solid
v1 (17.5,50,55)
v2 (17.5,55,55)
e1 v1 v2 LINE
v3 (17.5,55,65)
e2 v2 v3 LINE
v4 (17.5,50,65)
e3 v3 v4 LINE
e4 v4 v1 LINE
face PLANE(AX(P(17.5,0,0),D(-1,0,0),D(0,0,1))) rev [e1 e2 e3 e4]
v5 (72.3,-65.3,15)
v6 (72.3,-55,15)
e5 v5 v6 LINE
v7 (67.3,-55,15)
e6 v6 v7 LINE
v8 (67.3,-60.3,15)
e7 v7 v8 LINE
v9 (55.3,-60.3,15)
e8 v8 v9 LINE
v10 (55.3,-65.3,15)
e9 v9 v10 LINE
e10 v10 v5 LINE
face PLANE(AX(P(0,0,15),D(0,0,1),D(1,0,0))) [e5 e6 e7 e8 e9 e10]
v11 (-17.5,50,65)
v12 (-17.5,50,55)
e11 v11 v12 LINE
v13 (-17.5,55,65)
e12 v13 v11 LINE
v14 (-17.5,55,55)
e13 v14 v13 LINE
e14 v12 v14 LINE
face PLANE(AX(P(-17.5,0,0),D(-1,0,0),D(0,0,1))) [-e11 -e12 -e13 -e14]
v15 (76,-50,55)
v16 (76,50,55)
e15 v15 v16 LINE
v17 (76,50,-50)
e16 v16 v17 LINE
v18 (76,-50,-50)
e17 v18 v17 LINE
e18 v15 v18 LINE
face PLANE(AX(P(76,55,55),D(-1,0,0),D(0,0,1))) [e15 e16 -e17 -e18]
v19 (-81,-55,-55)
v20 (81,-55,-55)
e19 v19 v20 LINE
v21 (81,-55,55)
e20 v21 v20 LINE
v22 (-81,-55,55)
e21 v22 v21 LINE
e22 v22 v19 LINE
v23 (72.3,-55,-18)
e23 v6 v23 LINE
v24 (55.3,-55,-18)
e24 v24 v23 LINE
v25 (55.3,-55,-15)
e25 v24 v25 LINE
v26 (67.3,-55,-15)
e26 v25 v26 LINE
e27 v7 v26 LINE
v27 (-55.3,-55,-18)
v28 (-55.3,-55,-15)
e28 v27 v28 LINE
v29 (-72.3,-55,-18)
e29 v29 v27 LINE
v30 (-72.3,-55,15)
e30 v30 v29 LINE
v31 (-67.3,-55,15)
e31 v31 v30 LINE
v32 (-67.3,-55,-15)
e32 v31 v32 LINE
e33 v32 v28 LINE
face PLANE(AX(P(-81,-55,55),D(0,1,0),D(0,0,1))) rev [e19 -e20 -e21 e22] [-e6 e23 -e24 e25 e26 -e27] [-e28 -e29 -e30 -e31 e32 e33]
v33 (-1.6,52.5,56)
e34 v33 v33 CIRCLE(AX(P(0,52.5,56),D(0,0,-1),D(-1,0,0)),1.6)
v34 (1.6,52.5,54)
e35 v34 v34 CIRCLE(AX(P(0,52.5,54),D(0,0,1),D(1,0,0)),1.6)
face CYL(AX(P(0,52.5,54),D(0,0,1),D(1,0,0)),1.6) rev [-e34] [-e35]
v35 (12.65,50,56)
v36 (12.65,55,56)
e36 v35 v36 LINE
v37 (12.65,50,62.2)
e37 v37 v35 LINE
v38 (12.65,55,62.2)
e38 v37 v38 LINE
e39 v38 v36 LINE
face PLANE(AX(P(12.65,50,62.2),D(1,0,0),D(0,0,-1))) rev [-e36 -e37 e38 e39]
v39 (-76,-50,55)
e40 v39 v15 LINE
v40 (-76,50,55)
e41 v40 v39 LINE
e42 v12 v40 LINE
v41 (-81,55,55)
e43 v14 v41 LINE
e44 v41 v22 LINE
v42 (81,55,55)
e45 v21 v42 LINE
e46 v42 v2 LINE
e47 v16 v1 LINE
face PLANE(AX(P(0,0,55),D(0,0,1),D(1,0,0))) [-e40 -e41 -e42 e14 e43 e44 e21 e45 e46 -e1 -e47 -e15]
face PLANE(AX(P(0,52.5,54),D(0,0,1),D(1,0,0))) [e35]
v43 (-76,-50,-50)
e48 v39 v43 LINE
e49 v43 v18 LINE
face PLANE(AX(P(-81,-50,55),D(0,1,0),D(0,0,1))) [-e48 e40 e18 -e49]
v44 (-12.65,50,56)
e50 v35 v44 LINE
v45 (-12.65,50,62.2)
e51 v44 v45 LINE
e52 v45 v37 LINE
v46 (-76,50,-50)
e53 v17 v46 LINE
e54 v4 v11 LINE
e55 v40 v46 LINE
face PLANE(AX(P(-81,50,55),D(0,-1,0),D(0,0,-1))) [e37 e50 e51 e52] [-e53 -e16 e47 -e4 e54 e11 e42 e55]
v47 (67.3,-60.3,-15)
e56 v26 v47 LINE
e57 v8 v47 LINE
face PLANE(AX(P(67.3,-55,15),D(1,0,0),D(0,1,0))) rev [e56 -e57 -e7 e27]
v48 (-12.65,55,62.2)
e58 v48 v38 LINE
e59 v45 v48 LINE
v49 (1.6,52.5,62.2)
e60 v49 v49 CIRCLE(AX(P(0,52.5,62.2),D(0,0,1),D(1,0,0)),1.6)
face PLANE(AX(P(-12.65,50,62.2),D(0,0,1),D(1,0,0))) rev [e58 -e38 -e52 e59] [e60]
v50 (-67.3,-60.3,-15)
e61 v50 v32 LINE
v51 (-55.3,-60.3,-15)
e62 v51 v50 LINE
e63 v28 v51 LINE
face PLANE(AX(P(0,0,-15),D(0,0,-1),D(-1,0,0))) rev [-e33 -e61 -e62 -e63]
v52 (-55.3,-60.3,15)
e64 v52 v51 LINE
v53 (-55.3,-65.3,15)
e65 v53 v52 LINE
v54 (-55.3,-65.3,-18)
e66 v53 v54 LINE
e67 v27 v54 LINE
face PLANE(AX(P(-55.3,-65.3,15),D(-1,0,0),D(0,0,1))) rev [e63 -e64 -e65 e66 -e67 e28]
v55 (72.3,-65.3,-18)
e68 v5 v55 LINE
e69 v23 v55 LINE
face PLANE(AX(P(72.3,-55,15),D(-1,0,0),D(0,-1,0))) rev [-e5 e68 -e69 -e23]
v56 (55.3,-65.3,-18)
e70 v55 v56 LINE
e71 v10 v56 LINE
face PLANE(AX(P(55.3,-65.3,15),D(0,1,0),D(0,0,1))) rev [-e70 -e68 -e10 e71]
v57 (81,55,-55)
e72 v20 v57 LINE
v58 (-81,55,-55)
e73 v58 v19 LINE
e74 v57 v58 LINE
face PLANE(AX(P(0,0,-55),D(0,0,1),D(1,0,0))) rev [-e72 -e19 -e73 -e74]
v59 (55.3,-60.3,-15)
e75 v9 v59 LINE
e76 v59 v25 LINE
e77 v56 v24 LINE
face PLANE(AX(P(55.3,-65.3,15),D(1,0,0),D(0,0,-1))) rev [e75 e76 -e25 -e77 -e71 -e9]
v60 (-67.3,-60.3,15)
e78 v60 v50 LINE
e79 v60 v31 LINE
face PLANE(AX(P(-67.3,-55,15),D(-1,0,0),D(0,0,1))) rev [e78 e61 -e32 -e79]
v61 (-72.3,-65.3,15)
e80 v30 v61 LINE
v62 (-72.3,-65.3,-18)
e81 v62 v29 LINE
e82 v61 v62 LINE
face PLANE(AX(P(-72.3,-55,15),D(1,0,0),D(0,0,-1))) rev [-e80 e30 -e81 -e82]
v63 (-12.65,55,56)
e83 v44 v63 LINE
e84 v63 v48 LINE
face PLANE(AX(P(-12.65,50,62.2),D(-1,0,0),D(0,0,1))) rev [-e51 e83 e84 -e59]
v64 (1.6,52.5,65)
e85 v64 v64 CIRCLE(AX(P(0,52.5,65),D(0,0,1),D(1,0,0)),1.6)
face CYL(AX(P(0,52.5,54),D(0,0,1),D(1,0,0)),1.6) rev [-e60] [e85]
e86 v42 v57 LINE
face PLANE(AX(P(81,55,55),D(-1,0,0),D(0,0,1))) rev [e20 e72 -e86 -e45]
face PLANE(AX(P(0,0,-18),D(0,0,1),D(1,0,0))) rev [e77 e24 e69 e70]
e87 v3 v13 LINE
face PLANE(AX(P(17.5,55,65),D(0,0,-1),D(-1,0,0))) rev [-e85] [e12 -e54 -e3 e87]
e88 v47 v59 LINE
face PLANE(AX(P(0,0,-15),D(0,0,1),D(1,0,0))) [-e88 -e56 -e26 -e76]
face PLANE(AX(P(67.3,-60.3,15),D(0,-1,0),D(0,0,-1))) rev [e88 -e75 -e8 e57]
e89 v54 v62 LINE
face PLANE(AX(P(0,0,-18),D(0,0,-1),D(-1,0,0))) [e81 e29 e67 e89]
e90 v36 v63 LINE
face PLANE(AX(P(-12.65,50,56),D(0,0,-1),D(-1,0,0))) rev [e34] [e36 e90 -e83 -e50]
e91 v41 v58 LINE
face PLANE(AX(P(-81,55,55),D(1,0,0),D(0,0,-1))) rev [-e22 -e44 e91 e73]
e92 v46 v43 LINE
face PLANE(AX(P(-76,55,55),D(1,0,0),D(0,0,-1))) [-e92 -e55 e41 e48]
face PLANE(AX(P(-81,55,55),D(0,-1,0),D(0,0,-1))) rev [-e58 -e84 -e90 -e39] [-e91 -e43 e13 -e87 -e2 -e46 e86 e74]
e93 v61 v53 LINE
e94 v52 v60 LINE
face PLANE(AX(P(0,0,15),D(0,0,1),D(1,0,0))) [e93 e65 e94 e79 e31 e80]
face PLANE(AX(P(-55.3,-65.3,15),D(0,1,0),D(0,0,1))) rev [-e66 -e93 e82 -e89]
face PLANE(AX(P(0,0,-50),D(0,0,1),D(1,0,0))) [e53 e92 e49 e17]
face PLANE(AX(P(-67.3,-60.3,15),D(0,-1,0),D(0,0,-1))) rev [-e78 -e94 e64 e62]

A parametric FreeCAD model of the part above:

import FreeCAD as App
import Part
import Sketcher
from FreeCAD import Vector
Q = App.Units.Quantity


def faces_at(feature, points):
    """Names of the faces that lie closest to the given points."""
    faces = feature.Shape.Faces
    near = lambda p: min(range(len(faces)), key=lambda i: faces[i].distToShape(Part.Vertex(*p))[0])
    return sorted({f"Face{near(p) + 1}" for p in points})

doc = App.newDocument("Part")
params = doc.addObject("Spreadsheet::Sheet", "Params")
for row, (alias, value) in enumerate([
    ("sketch1_width", "162 mm"),
    ("sketch1_height", "110 mm"),
    ("pad1_length", "110 mm"),
    ("thickness_wall", "5 mm"),
    ("sketch2_width", "5 mm"),
    ("sketch2_width2", "17 mm"),
    ("sketch2_height", "5.3 mm"),
    ("pad2_length", "30 mm"),
    ("sketch3_width", "17 mm"),
    ("sketch3_height", "10.3 mm"),
    ("pad3_length", "3 mm"),
    ("sketch4_width", "5 mm"),
    ("sketch4_height", "10 mm"),
    ("pad4_length", "35 mm"),
    ("sketch5_width", "25.3 mm"),
    ("sketch5_height", "6.2 mm"),
    ("pocket1_length", "5 mm"),
    ("sketch6_diameter", "3.2 mm"),
    ("pocket2_length", "11 mm"),
], start=1):
    params.set(f"A{row}", alias)
    params.set(f"B{row}", "=" + value)
    params.setAlias(f"B{row}", alias)

body = doc.addObject("PartDesign::Body", "Body")

sketch1 = doc.addObject("Sketcher::SketchObject", "Sketch")
body.addObject(sketch1)
sketch1.AttachmentSupport = (doc.XY_Plane, [""])
sketch1.MapMode = "FlatFace"
sketch1.addGeometry([
    Part.LineSegment(Vector(-81, 55, 0), Vector(-81, -55, 0)),
    Part.LineSegment(Vector(-81, -55, 0), Vector(81, -55, 0)),
    Part.LineSegment(Vector(81, -55, 0), Vector(81, 55, 0)),
    Part.LineSegment(Vector(81, 55, 0), Vector(-81, 55, 0)),
], False)
sketch1.addConstraint([
    Sketcher.Constraint("Coincident", 0, 2, 1, 1),
    Sketcher.Constraint("Coincident", 1, 2, 2, 1),
    Sketcher.Constraint("Coincident", 2, 2, 3, 1),
    Sketcher.Constraint("Coincident", 3, 2, 0, 1),
    Sketcher.Constraint("Vertical", 0),
    Sketcher.Constraint("Horizontal", 1),
    Sketcher.Constraint("Vertical", 2),
    Sketcher.Constraint("Horizontal", 3),
    Sketcher.Constraint("Symmetric", 0, 2, 2, 2, -1, 1),
    Sketcher.Constraint("DistanceX", 1, 1, 1, 2, Q("162 mm")),
    Sketcher.Constraint("DistanceY", 0, 2, 0, 1, Q("110 mm")),
])
sketch1.setExpression("Constraints[9]", "Params.sketch1_width")
sketch1.setExpression("Constraints[10]", "Params.sketch1_height")
pad1 = doc.addObject("PartDesign::Pad", "Pad")
body.addObject(pad1)
pad1.Profile = sketch1
pad1.setExpression("Length", "Params.pad1_length")
pad1.Midplane = True
doc.recompute()

thickness = doc.addObject("PartDesign::Thickness", "Thickness")
body.addObject(thickness)
thickness.Base = (pad1, faces_at(pad1, [(0, 0, 55)]))
thickness.setExpression("Value", "Params.thickness_wall")
thickness.Reversed = True
thickness.Join = "Intersection"

sketch2 = doc.addObject("Sketcher::SketchObject", "Sketch001")
body.addObject(sketch2)
sketch2.AttachmentSupport = (doc.XY_Plane, [""])
sketch2.MapMode = "FlatFace"
sketch2.addGeometry([
    Part.LineSegment(Vector(-67, -60, 0), Vector(-67, -55, 0)),
    Part.LineSegment(Vector(-67, -55, 0), Vector(-72, -55, 0)),
    Part.LineSegment(Vector(-72, -55, 0), Vector(-72, -65, 0)),
    Part.LineSegment(Vector(-72, -65, 0), Vector(-55, -65, 0)),
    Part.LineSegment(Vector(-55, -65, 0), Vector(-55, -60, 0)),
    Part.LineSegment(Vector(-55, -60, 0), Vector(-67, -60, 0)),
    Part.LineSegment(Vector(67, -55, 0), Vector(67, -60, 0)),
    Part.LineSegment(Vector(67, -60, 0), Vector(55, -60, 0)),
    Part.LineSegment(Vector(55, -60, 0), Vector(55, -65, 0)),
    Part.LineSegment(Vector(55, -65, 0), Vector(72, -65, 0)),
    Part.LineSegment(Vector(72, -65, 0), Vector(72, -55, 0)),
    Part.LineSegment(Vector(72, -55, 0), Vector(67, -55, 0)),
], False)
sketch2.addConstraint([
    Sketcher.Constraint("Coincident", 0, 2, 1, 1),
    Sketcher.Constraint("Coincident", 1, 2, 2, 1),
    Sketcher.Constraint("Coincident", 2, 2, 3, 1),
    Sketcher.Constraint("Coincident", 3, 2, 4, 1),
    Sketcher.Constraint("Coincident", 4, 2, 5, 1),
    Sketcher.Constraint("Coincident", 5, 2, 0, 1),
    Sketcher.Constraint("Coincident", 6, 2, 7, 1),
    Sketcher.Constraint("Coincident", 7, 2, 8, 1),
    Sketcher.Constraint("Coincident", 8, 2, 9, 1),
    Sketcher.Constraint("Coincident", 9, 2, 10, 1),
    Sketcher.Constraint("Coincident", 10, 2, 11, 1),
    Sketcher.Constraint("Coincident", 11, 2, 6, 1),
    Sketcher.Constraint("Vertical", 0),
    Sketcher.Constraint("Horizontal", 1),
    Sketcher.Constraint("Vertical", 2),
    Sketcher.Constraint("Horizontal", 3),
    Sketcher.Constraint("Vertical", 4),
    Sketcher.Constraint("Horizontal", 5),
    Sketcher.Constraint("Vertical", 6),
    Sketcher.Constraint("Horizontal", 7),
    Sketcher.Constraint("Vertical", 8),
    Sketcher.Constraint("Horizontal", 9),
    Sketcher.Constraint("Vertical", 10),
    Sketcher.Constraint("Horizontal", 11),
    Sketcher.Constraint("Symmetric", 5, 2, 6, 2, -2),
    Sketcher.Constraint("Symmetric", 3, 2, 8, 2, -2),
    Sketcher.Constraint("Symmetric", 1, 2, 10, 2, -2),
    Sketcher.Constraint("Equal", 11, 4),
    Sketcher.Constraint("DistanceX", 1, 2, 1, 1, Q("5 mm")),
    Sketcher.Constraint("DistanceX", 3, 1, 3, 2, Q("17 mm")),
    Sketcher.Constraint("DistanceY", 0, 1, 0, 2, Q("5.3 mm")),
    Sketcher.Constraint("DistanceY", 0, 2, -1, 1, Q("55 mm")),
    Sketcher.Constraint("DistanceX", 0, 2, -1, 1, Q("67.3 mm")),
])
sketch2.setExpression("Constraints[28]", "Params.sketch2_width")
sketch2.setExpression("Constraints[29]", "Params.sketch2_width2")
sketch2.setExpression("Constraints[30]", "Params.sketch2_height")
pad2 = doc.addObject("PartDesign::Pad", "Pad001")
body.addObject(pad2)
pad2.Profile = sketch2
pad2.setExpression("Length", "Params.pad2_length")
pad2.Midplane = True

sketch3 = doc.addObject("Sketcher::SketchObject", "Sketch002")
body.addObject(sketch3)
sketch3.AttachmentSupport = (doc.XY_Plane, [""])
sketch3.MapMode = "FlatFace"
sketch3.AttachmentOffset = App.Placement(Vector(0, 0, -15), App.Rotation())
sketch3.addGeometry([
    Part.LineSegment(Vector(-55, -55, 0), Vector(-55, -65, 0)),
    Part.LineSegment(Vector(-55, -65, 0), Vector(-72, -65, 0)),
    Part.LineSegment(Vector(-72, -65, 0), Vector(-72, -55, 0)),
    Part.LineSegment(Vector(-72, -55, 0), Vector(-55, -55, 0)),
    Part.LineSegment(Vector(72, -55, 0), Vector(72, -65, 0)),
    Part.LineSegment(Vector(72, -65, 0), Vector(55, -65, 0)),
    Part.LineSegment(Vector(55, -65, 0), Vector(55, -55, 0)),
    Part.LineSegment(Vector(55, -55, 0), Vector(72, -55, 0)),
], False)
sketch3.addConstraint([
    Sketcher.Constraint("Coincident", 0, 2, 1, 1),
    Sketcher.Constraint("Coincident", 1, 2, 2, 1),
    Sketcher.Constraint("Coincident", 2, 2, 3, 1),
    Sketcher.Constraint("Coincident", 3, 2, 0, 1),
    Sketcher.Constraint("Coincident", 4, 2, 5, 1),
    Sketcher.Constraint("Coincident", 5, 2, 6, 1),
    Sketcher.Constraint("Coincident", 6, 2, 7, 1),
    Sketcher.Constraint("Coincident", 7, 2, 4, 1),
    Sketcher.Constraint("Vertical", 0),
    Sketcher.Constraint("Horizontal", 1),
    Sketcher.Constraint("Vertical", 2),
    Sketcher.Constraint("Horizontal", 3),
    Sketcher.Constraint("Vertical", 4),
    Sketcher.Constraint("Horizontal", 5),
    Sketcher.Constraint("Vertical", 6),
    Sketcher.Constraint("Horizontal", 7),
    Sketcher.Constraint("Symmetric", 1, 2, 4, 2, -2),
    Sketcher.Constraint("Symmetric", 3, 2, 6, 2, -2),
    Sketcher.Constraint("DistanceX", 1, 2, 1, 1, Q("17 mm")),
    Sketcher.Constraint("DistanceY", 0, 2, 0, 1, Q("10.3 mm")),
    Sketcher.Constraint("DistanceY", 2, 2, -1, 1, Q("55 mm")),
    Sketcher.Constraint("DistanceX", 0, 2, -1, 1, Q("55.3 mm")),
])
sketch3.setExpression("Constraints[18]", "Params.sketch3_width")
sketch3.setExpression("Constraints[19]", "Params.sketch3_height")
pad3 = doc.addObject("PartDesign::Pad", "Pad002")
body.addObject(pad3)
pad3.Profile = sketch3
pad3.setExpression("Length", "Params.pad3_length")
pad3.Reversed = True

sketch4 = doc.addObject("Sketcher::SketchObject", "Sketch003")
body.addObject(sketch4)
sketch4.AttachmentSupport = (doc.YZ_Plane, [""])
sketch4.MapMode = "FlatFace"
sketch4.addGeometry([
    Part.LineSegment(Vector(55, 65, 0), Vector(50, 65, 0)),
    Part.LineSegment(Vector(50, 65, 0), Vector(50, 55, 0)),
    Part.LineSegment(Vector(50, 55, 0), Vector(55, 55, 0)),
    Part.LineSegment(Vector(55, 55, 0), Vector(55, 65, 0)),
], False)
sketch4.addConstraint([
    Sketcher.Constraint("Coincident", 0, 2, 1, 1),
    Sketcher.Constraint("Coincident", 1, 2, 2, 1),
    Sketcher.Constraint("Coincident", 2, 2, 3, 1),
    Sketcher.Constraint("Coincident", 3, 2, 0, 1),
    Sketcher.Constraint("Horizontal", 0),
    Sketcher.Constraint("Vertical", 1),
    Sketcher.Constraint("Horizontal", 2),
    Sketcher.Constraint("Vertical", 3),
    Sketcher.Constraint("DistanceX", 0, 2, 0, 1, Q("5 mm")),
    Sketcher.Constraint("DistanceY", 1, 2, 1, 1, Q("10 mm")),
    Sketcher.Constraint("DistanceX", -1, 1, 0, 2, Q("50 mm")),
    Sketcher.Constraint("DistanceY", -1, 1, 0, 2, Q("65 mm")),
])
sketch4.setExpression("Constraints[8]", "Params.sketch4_width")
sketch4.setExpression("Constraints[9]", "Params.sketch4_height")
pad4 = doc.addObject("PartDesign::Pad", "Pad003")
body.addObject(pad4)
pad4.Profile = sketch4
pad4.setExpression("Length", "Params.pad4_length")
pad4.Midplane = True

sketch5 = doc.addObject("Sketcher::SketchObject", "Sketch004")
body.addObject(sketch5)
sketch5.AttachmentSupport = (doc.XZ_Plane, [""])
sketch5.MapMode = "FlatFace"
sketch5.AttachmentOffset = App.Placement(Vector(0, 0, -55), App.Rotation())
sketch5.addGeometry([
    Part.LineSegment(Vector(-13, 56, 0), Vector(-13, 62, 0)),
    Part.LineSegment(Vector(-13, 62, 0), Vector(13, 62, 0)),
    Part.LineSegment(Vector(13, 62, 0), Vector(13, 56, 0)),
    Part.LineSegment(Vector(13, 56, 0), Vector(-13, 56, 0)),
], False)
sketch5.addConstraint([
    Sketcher.Constraint("Coincident", 0, 2, 1, 1),
    Sketcher.Constraint("Coincident", 1, 2, 2, 1),
    Sketcher.Constraint("Coincident", 2, 2, 3, 1),
    Sketcher.Constraint("Coincident", 3, 2, 0, 1),
    Sketcher.Constraint("Vertical", 0),
    Sketcher.Constraint("Horizontal", 1),
    Sketcher.Constraint("Vertical", 2),
    Sketcher.Constraint("Horizontal", 3),
    Sketcher.Constraint("DistanceX", 1, 1, 1, 2, Q("25.3 mm")),
    Sketcher.Constraint("DistanceY", 0, 1, 0, 2, Q("6.2 mm")),
    Sketcher.Constraint("DistanceY", -1, 1, 2, 2, Q("56 mm")),
    Sketcher.Constraint("DistanceX", 0, 2, -1, 1, Q("12.65 mm")),
])
sketch5.setExpression("Constraints[8]", "Params.sketch5_width")
sketch5.setExpression("Constraints[9]", "Params.sketch5_height")
pocket1 = doc.addObject("PartDesign::Pocket", "Pocket")
body.addObject(pocket1)
pocket1.Profile = sketch5
pocket1.setExpression("Length", "Params.pocket1_length")
pocket1.Reversed = True

sketch6 = doc.addObject("Sketcher::SketchObject", "Sketch005")
body.addObject(sketch6)
sketch6.AttachmentSupport = (doc.XY_Plane, [""])
sketch6.MapMode = "FlatFace"
sketch6.AttachmentOffset = App.Placement(Vector(0, 0, 65), App.Rotation())
sketch6.addGeometry(Part.Circle(Vector(0, 52.5, 0), Vector(0, 0, 1), 1.6), False)
sketch6.addConstraint([
    Sketcher.Constraint("PointOnObject", 0, 3, -2),
    Sketcher.Constraint("Diameter", 0, Q("3.2 mm")),
    Sketcher.Constraint("DistanceY", -1, 1, 0, 3, Q("52.5 mm")),
])
sketch6.setExpression("Constraints[1]", "Params.sketch6_diameter")
pocket2 = doc.addObject("PartDesign::Pocket", "Pocket001")
body.addObject(pocket2)
pocket2.Profile = sketch6
pocket2.setExpression("Length", "Params.pocket2_length")

doc.recompute()
